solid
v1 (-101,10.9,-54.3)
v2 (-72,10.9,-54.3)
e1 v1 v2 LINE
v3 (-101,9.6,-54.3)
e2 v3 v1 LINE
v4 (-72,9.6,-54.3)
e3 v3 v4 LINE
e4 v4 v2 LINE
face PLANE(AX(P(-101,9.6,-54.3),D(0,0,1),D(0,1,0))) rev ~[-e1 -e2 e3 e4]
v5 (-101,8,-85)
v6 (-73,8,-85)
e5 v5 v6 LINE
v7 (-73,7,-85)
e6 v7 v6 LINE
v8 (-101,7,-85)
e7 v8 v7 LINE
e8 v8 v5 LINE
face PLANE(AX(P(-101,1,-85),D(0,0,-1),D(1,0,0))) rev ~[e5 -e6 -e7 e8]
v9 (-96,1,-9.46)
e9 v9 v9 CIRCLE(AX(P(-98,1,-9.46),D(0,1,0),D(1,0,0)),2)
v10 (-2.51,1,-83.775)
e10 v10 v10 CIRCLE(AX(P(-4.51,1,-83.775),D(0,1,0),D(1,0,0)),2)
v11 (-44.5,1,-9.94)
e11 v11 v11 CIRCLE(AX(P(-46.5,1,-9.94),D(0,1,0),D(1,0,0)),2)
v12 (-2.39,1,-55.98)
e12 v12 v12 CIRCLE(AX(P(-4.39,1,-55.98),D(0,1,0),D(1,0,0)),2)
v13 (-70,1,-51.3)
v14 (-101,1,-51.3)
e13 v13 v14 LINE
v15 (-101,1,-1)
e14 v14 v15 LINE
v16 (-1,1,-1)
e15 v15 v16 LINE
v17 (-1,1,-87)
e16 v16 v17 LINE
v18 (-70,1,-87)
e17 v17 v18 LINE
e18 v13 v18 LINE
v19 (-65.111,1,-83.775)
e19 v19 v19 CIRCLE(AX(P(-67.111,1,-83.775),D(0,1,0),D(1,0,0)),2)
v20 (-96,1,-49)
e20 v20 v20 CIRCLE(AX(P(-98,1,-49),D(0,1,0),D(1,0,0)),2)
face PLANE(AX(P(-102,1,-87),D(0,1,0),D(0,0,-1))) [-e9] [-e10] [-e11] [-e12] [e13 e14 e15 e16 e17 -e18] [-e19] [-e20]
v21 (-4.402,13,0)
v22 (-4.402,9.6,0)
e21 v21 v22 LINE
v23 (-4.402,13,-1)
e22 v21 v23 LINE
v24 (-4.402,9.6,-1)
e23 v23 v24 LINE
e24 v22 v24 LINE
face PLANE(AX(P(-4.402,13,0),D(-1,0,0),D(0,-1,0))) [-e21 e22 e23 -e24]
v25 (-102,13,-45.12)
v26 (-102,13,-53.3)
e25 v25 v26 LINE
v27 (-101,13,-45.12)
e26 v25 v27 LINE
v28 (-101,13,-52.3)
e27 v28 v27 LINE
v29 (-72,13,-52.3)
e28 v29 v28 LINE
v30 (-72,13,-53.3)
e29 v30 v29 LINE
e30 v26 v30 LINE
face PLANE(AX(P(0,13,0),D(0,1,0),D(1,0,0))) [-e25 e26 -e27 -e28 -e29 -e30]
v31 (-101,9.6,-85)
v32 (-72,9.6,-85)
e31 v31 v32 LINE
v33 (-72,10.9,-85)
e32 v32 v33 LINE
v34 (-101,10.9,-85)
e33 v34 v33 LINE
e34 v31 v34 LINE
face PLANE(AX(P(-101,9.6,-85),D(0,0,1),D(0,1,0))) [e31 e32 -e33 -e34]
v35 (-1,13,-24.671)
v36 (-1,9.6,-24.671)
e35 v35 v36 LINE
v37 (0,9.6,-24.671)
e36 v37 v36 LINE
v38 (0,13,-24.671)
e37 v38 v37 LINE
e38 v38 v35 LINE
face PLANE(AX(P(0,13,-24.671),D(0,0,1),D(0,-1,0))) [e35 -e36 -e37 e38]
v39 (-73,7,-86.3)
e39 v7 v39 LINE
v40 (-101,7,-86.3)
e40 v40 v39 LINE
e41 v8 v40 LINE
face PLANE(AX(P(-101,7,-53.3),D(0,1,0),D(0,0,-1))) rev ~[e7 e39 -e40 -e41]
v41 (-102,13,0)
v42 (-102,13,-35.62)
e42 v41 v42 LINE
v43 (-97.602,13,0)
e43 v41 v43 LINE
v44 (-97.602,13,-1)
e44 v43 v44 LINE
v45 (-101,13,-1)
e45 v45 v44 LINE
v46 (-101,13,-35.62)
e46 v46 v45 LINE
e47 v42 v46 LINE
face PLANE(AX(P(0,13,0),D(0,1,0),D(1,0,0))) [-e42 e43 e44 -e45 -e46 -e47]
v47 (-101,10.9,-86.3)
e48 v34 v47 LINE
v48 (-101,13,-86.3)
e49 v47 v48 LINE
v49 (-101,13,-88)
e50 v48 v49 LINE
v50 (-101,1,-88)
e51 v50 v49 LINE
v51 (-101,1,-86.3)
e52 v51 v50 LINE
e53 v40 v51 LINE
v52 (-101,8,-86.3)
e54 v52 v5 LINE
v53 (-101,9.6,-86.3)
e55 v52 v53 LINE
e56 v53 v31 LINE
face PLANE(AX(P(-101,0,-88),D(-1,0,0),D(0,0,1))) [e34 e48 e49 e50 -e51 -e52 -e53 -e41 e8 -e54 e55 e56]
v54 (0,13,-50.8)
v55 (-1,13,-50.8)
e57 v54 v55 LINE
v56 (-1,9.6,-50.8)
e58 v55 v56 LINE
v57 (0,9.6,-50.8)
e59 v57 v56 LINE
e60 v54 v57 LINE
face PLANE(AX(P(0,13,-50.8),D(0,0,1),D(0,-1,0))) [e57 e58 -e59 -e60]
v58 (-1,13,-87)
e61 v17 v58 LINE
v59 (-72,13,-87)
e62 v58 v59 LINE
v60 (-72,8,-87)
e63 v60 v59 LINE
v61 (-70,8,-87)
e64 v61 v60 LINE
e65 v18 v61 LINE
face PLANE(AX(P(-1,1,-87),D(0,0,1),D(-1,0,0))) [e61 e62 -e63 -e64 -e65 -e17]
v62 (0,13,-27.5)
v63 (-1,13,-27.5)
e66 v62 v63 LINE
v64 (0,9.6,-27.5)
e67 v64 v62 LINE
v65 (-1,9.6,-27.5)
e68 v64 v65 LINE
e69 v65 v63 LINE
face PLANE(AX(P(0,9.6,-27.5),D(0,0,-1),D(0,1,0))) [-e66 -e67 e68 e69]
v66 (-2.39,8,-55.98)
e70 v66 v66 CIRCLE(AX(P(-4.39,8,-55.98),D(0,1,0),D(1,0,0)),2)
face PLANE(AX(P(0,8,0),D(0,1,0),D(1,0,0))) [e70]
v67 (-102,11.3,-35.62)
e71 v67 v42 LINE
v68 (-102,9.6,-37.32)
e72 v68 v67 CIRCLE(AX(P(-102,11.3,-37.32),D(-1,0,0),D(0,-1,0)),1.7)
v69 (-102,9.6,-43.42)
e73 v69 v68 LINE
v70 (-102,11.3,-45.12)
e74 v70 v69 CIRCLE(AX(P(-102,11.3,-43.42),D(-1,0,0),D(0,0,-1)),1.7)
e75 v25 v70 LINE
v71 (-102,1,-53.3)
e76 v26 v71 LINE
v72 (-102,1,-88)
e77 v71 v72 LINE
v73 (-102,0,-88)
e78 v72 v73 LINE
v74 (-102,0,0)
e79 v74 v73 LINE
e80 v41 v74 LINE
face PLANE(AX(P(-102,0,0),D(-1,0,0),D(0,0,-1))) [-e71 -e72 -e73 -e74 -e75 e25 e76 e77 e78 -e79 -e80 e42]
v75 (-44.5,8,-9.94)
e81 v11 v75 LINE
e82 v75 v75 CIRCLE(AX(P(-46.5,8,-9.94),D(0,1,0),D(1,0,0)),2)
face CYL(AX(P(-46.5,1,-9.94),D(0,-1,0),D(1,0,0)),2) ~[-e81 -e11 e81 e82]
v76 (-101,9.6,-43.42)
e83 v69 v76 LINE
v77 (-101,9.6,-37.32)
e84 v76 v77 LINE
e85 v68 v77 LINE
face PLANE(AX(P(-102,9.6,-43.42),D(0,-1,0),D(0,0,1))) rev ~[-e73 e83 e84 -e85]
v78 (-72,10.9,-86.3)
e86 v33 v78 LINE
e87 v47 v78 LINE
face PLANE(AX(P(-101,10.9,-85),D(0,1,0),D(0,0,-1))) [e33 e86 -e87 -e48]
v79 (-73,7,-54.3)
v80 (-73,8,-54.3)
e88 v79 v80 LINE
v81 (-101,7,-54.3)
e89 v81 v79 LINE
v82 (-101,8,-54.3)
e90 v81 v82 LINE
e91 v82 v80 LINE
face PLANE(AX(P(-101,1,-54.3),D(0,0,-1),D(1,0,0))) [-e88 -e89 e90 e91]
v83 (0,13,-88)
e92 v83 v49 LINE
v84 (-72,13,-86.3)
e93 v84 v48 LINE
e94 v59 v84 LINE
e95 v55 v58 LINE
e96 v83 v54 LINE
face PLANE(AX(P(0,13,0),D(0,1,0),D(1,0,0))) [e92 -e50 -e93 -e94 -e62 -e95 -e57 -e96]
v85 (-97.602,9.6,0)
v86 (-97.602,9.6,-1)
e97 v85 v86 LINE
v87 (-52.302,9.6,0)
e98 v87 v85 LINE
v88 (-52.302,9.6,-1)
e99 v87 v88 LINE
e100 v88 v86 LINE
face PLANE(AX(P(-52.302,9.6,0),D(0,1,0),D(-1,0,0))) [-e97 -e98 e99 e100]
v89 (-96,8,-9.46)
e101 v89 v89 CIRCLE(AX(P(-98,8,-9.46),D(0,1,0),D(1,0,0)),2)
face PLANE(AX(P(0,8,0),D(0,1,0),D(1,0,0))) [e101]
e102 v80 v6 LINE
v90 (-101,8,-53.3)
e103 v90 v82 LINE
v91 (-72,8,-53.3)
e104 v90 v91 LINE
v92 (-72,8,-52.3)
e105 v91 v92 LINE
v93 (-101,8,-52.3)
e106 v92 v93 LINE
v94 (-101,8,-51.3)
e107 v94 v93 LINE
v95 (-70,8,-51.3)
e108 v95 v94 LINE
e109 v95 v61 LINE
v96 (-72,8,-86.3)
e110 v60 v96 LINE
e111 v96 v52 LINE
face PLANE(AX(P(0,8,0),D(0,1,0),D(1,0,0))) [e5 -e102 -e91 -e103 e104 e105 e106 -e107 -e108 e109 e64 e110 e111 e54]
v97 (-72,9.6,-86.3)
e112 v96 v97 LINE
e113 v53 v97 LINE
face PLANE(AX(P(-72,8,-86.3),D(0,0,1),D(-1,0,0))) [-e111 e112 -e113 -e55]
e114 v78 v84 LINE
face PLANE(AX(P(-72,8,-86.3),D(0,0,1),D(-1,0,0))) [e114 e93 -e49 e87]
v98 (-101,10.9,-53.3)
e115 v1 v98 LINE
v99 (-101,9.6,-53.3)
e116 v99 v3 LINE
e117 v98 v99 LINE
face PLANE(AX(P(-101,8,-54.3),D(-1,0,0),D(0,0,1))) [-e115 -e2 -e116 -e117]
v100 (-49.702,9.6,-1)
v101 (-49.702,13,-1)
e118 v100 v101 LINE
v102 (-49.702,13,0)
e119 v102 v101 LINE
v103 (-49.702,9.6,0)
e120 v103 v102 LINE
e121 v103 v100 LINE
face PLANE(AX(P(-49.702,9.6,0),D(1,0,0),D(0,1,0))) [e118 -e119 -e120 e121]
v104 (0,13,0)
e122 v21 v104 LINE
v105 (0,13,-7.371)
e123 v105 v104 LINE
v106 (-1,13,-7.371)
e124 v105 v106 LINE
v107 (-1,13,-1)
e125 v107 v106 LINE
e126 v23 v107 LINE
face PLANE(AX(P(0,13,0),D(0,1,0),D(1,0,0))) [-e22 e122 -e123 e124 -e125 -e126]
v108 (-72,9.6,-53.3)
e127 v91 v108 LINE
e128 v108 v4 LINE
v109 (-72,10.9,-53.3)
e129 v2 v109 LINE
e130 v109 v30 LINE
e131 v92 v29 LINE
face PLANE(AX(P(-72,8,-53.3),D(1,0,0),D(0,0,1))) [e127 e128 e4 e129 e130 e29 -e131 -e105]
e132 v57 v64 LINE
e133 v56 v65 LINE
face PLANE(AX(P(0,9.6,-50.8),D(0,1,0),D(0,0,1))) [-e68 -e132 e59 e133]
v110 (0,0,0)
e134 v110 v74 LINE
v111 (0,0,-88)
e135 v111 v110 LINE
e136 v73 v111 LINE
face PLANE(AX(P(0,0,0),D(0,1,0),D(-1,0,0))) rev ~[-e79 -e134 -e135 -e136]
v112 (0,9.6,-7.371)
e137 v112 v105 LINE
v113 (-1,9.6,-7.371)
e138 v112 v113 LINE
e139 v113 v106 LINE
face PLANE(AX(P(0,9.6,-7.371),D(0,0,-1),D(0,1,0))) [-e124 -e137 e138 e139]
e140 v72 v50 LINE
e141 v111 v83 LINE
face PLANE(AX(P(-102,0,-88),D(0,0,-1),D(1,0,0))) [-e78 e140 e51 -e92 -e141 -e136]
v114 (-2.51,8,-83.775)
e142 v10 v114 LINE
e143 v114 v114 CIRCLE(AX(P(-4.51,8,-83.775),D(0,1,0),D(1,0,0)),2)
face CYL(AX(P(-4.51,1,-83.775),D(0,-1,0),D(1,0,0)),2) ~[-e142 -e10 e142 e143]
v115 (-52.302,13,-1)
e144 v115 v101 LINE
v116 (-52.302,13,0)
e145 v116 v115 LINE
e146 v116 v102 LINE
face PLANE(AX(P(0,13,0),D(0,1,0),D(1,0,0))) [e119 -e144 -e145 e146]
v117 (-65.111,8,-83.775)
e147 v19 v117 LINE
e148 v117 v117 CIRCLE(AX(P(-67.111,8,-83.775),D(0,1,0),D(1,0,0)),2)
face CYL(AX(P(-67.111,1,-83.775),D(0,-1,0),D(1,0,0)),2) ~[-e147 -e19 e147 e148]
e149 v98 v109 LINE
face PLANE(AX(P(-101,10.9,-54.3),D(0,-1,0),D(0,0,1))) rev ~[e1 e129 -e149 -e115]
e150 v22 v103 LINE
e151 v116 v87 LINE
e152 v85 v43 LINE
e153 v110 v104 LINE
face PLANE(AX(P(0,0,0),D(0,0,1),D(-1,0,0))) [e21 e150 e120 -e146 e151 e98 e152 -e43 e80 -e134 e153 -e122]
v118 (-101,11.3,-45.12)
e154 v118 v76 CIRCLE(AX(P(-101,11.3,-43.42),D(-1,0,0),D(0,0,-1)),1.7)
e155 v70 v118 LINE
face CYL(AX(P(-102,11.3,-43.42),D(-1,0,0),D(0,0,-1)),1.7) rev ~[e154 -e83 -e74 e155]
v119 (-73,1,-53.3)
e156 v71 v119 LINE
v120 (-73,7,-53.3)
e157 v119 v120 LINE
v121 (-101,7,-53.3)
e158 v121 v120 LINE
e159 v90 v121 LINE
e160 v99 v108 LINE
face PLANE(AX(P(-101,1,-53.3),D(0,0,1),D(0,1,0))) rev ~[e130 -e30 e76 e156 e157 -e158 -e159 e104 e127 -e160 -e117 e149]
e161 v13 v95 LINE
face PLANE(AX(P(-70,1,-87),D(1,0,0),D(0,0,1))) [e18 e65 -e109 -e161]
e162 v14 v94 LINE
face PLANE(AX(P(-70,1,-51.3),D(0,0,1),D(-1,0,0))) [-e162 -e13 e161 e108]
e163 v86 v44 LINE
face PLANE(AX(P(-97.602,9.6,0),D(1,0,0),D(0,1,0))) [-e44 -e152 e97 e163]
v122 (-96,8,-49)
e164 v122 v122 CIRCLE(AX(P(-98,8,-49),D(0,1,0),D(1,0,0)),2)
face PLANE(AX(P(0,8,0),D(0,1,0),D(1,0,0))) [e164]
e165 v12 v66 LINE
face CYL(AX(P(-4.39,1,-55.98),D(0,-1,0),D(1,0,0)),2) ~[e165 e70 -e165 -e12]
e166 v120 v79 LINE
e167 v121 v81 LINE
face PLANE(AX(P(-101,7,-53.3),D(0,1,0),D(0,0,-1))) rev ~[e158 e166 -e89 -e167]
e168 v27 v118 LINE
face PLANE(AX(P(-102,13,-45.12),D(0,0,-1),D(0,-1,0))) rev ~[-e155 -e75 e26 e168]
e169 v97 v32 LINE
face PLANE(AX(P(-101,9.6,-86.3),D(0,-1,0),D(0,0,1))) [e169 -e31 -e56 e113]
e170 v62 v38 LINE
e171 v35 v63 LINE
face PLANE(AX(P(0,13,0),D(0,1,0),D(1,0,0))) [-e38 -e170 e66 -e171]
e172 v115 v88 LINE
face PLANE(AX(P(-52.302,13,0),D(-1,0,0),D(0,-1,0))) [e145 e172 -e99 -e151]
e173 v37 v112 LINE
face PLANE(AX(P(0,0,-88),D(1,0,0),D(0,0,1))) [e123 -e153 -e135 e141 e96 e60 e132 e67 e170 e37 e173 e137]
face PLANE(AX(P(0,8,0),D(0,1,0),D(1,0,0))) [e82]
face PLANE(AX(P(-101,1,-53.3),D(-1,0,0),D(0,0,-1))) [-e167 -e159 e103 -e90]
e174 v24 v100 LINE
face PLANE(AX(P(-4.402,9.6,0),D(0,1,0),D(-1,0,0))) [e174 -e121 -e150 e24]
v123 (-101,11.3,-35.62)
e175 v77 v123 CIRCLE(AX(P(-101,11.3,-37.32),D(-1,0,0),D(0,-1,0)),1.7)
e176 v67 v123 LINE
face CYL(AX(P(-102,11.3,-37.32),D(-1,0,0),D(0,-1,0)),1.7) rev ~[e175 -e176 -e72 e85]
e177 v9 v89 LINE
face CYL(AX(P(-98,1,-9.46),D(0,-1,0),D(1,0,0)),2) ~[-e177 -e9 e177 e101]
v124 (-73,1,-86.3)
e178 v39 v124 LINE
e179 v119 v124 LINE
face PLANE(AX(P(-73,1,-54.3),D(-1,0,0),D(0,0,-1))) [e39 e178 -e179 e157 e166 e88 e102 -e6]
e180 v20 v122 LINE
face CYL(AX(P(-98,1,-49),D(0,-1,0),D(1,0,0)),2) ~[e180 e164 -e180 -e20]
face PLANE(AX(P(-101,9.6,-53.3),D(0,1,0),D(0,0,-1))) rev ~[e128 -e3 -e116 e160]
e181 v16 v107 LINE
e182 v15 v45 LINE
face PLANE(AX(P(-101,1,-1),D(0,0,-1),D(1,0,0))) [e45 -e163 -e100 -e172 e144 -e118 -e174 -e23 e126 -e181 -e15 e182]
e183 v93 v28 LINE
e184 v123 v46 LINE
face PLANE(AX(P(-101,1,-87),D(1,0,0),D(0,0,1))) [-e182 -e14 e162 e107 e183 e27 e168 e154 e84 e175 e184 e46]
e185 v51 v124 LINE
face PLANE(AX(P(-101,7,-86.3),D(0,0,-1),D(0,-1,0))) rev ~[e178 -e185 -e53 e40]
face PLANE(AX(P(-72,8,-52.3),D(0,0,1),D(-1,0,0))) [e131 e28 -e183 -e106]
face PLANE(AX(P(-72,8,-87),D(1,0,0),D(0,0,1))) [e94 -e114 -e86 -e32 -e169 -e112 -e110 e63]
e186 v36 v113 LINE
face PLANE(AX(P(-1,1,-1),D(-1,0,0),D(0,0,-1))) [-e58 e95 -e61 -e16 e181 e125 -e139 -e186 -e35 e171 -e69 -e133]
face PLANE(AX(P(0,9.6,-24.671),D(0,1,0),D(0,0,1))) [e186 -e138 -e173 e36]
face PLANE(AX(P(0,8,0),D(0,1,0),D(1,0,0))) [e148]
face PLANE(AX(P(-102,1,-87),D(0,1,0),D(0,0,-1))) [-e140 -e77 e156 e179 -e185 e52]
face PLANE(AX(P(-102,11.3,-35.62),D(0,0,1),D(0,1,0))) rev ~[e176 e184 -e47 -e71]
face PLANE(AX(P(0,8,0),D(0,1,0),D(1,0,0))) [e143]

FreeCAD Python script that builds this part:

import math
import FreeCAD as App
import Part
import Sketcher
Q = App.Units.Quantity

doc = App.newDocument("Part")
body = doc.addObject("PartDesign::Body", "Body")

# Sketch on XZ plane
sketch1 = body.newObject("Sketcher::SketchObject", "Sketch")
sketch1.AttachmentSupport = (doc.getObject("XZ_Plane"), [""])
sketch1.MapMode = "FlatFace"
sketch1.addGeometry(Part.LineSegment(App.Vector(-102, 0, 0), App.Vector(0, 0, 0)), False)
sketch1.addGeometry(Part.LineSegment(App.Vector(0, 0, 0), App.Vector(0, -88, 0)), False)
sketch1.addGeometry(Part.LineSegment(App.Vector(0, -88, 0), App.Vector(-102, -88, 0)), False)
sketch1.addGeometry(Part.LineSegment(App.Vector(-102, -88, 0), App.Vector(-102, 0, 0)), False)
sketch1.addConstraint(Sketcher.Constraint("Coincident", 0, 2, 1, 1))
sketch1.addConstraint(Sketcher.Constraint("Coincident", 1, 2, 2, 1))
sketch1.addConstraint(Sketcher.Constraint("Coincident", 2, 2, 3, 1))
sketch1.addConstraint(Sketcher.Constraint("Coincident", 3, 2, 0, 1))
sketch1.addConstraint(Sketcher.Constraint("Horizontal", 0))
sketch1.addConstraint(Sketcher.Constraint("Vertical", 1))
sketch1.addConstraint(Sketcher.Constraint("Horizontal", 2))
sketch1.addConstraint(Sketcher.Constraint("Vertical", 3))
sketch1.addConstraint(Sketcher.Constraint("Coincident", 0, 2, -1, 1))
sketch1.addConstraint(Sketcher.Constraint("DistanceX", 0, 1, 0, 2, Q("102 mm")))
sketch1.addConstraint(Sketcher.Constraint("DistanceY", 1, 2, 1, 1, Q("88 mm")))
pad1 = body.newObject("PartDesign::Pad", "Pad")
pad1.Profile = sketch1
pad1.Length = 1
pad1.Reversed = True

# Sketch on XZ plane
sketch2 = body.newObject("Sketcher::SketchObject", "Sketch001")
sketch2.AttachmentSupport = (doc.getObject("XZ_Plane"), [""])
sketch2.MapMode = "FlatFace"
sketch2.AttachmentOffset = App.Placement(App.Vector(0, 0, -1), App.Rotation())
sketch2.addGeometry(Part.LineSegment(App.Vector(0, 0, 0), App.Vector(0, -88, 0)), False)
sketch2.addGeometry(Part.LineSegment(App.Vector(0, -88, 0), App.Vector(-102, -88, 0)), False)
sketch2.addGeometry(Part.LineSegment(App.Vector(-102, -88, 0), App.Vector(-102, 0, 0)), False)
sketch2.addGeometry(Part.LineSegment(App.Vector(-102, 0, 0), App.Vector(0, 0, 0)), False)
sketch2.addGeometry(Part.LineSegment(App.Vector(-1, -87, 0), App.Vector(-1, -1, 0)), False)
sketch2.addGeometry(Part.LineSegment(App.Vector(-1, -1, 0), App.Vector(-101, -1, 0)), False)
sketch2.addGeometry(Part.LineSegment(App.Vector(-101, -1, 0), App.Vector(-101, -87, 0)), False)
sketch2.addGeometry(Part.LineSegment(App.Vector(-101, -87, 0), App.Vector(-1, -87, 0)), False)
sketch2.addConstraint(Sketcher.Constraint("Coincident", 0, 2, 1, 1))
sketch2.addConstraint(Sketcher.Constraint("Coincident", 1, 2, 2, 1))
sketch2.addConstraint(Sketcher.Constraint("Coincident", 2, 2, 3, 1))
sketch2.addConstraint(Sketcher.Constraint("Coincident", 3, 2, 0, 1))
sketch2.addConstraint(Sketcher.Constraint("Coincident", 4, 2, 5, 1))
sketch2.addConstraint(Sketcher.Constraint("Coincident", 5, 2, 6, 1))
sketch2.addConstraint(Sketcher.Constraint("Coincident", 6, 2, 7, 1))
sketch2.addConstraint(Sketcher.Constraint("Coincident", 7, 2, 4, 1))
sketch2.addConstraint(Sketcher.Constraint("Vertical", 0))
sketch2.addConstraint(Sketcher.Constraint("Horizontal", 1))
sketch2.addConstraint(Sketcher.Constraint("Vertical", 2))
sketch2.addConstraint(Sketcher.Constraint("Horizontal", 3))
sketch2.addConstraint(Sketcher.Constraint("Vertical", 4))
sketch2.addConstraint(Sketcher.Constraint("Horizontal", 5))
sketch2.addConstraint(Sketcher.Constraint("Vertical", 6))
sketch2.addConstraint(Sketcher.Constraint("Horizontal", 7))
sketch2.addConstraint(Sketcher.Constraint("Coincident", 3, 2, -1, 1))
sketch2.addConstraint(Sketcher.Constraint("DistanceX", 4, 2, -1, 1, Q("1 mm")))
sketch2.addConstraint(Sketcher.Constraint("DistanceY", 4, 2, -1, 1, Q("1 mm")))
sketch2.addConstraint(Sketcher.Constraint("DistanceX", 2, 2, 5, 2, Q("1 mm")))
sketch2.addConstraint(Sketcher.Constraint("DistanceY", 1, 2, 6, 2, Q("1 mm")))
sketch2.addConstraint(Sketcher.Constraint("DistanceX", 1, 2, 1, 1, Q("102 mm")))
sketch2.addConstraint(Sketcher.Constraint("DistanceY", 0, 2, 0, 1, Q("88 mm")))
pad2 = body.newObject("PartDesign::Pad", "Pad001")
pad2.Profile = sketch2
pad2.Length = 12
pad2.Reversed = True

# Sketch on XY plane
sketch3 = body.newObject("Sketcher::SketchObject", "Sketch002")
sketch3.AttachmentSupport = (doc.getObject("XY_Plane"), [""])
sketch3.MapMode = "FlatFace"
sketch3.addGeometry(Part.LineSegment(App.Vector(-4.4, 9.6, 0), App.Vector(-4.4, 13, 0)), False)
sketch3.addGeometry(Part.LineSegment(App.Vector(-4.4, 13, 0), App.Vector(-49.7, 13, 0)), False)
sketch3.addGeometry(Part.LineSegment(App.Vector(-49.7, 13, 0), App.Vector(-49.7, 9.6, 0)), False)
sketch3.addGeometry(Part.LineSegment(App.Vector(-49.7, 9.6, 0), App.Vector(-4.4, 9.6, 0)), False)
sketch3.addGeometry(Part.LineSegment(App.Vector(-52.3, 9.6, 0), App.Vector(-52.3, 13, 0)), False)
sketch3.addGeometry(Part.LineSegment(App.Vector(-52.3, 13, 0), App.Vector(-97.6, 13, 0)), False)
sketch3.addGeometry(Part.LineSegment(App.Vector(-97.6, 13, 0), App.Vector(-97.6, 9.6, 0)), False)
sketch3.addGeometry(Part.LineSegment(App.Vector(-97.6, 9.6, 0), App.Vector(-52.3, 9.6, 0)), False)
sketch3.addConstraint(Sketcher.Constraint("Coincident", 0, 2, 1, 1))
sketch3.addConstraint(Sketcher.Constraint("Coincident", 1, 2, 2, 1))
sketch3.addConstraint(Sketcher.Constraint("Coincident", 2, 2, 3, 1))
sketch3.addConstraint(Sketcher.Constraint("Coincident", 3, 2, 0, 1))
sketch3.addConstraint(Sketcher.Constraint("Coincident", 4, 2, 5, 1))
sketch3.addConstraint(Sketcher.Constraint("Coincident", 5, 2, 6, 1))
sketch3.addConstraint(Sketcher.Constraint("Coincident", 6, 2, 7, 1))
sketch3.addConstraint(Sketcher.Constraint("Coincident", 7, 2, 4, 1))
sketch3.addConstraint(Sketcher.Constraint("Vertical", 0))
sketch3.addConstraint(Sketcher.Constraint("Horizontal", 1))
sketch3.addConstraint(Sketcher.Constraint("Vertical", 2))
sketch3.addConstraint(Sketcher.Constraint("Horizontal", 3))
sketch3.addConstraint(Sketcher.Constraint("Vertical", 4))
sketch3.addConstraint(Sketcher.Constraint("Horizontal", 5))
sketch3.addConstraint(Sketcher.Constraint("Vertical", 6))
sketch3.addConstraint(Sketcher.Constraint("Horizontal", 7))
sketch3.addConstraint(Sketcher.Constraint("Horizontal", 1, 2, 4, 2))
sketch3.addConstraint(Sketcher.Constraint("Horizontal", 3, 2, 6, 2))
sketch3.addConstraint(Sketcher.Constraint("Equal", 3, 5))
sketch3.addConstraint(Sketcher.Constraint("DistanceX", 1, 2, 1, 1, Q("45.3 mm")))
sketch3.addConstraint(Sketcher.Constraint("DistanceY", -1, 1, 2, 2, Q("9.6 mm")))
sketch3.addConstraint(Sketcher.Constraint("DistanceX", 4, 2, 1, 2, Q("2.6 mm")))
sketch3.addConstraint(Sketcher.Constraint("DistanceY", 0, 1, 0, 2, Q("3.4 mm")))
sketch3.addConstraint(Sketcher.Constraint("DistanceX", 0, 2, -1, 1, Q("4.402 mm")))
pocket1 = body.newObject("PartDesign::Pocket", "Pocket")
pocket1.Profile = sketch3
pocket1.Length = 1

# Sketch on YZ plane
sketch4 = body.newObject("Sketcher::SketchObject", "Sketch003")
sketch4.AttachmentSupport = (doc.getObject("YZ_Plane"), [""])
sketch4.MapMode = "FlatFace"
sketch4.addGeometry(Part.LineSegment(App.Vector(13, -50.8, 0), App.Vector(13, -27.5, 0)), False)
sketch4.addGeometry(Part.LineSegment(App.Vector(13, -27.5, 0), App.Vector(9.6, -27.5, 0)), False)
sketch4.addGeometry(Part.LineSegment(App.Vector(9.6, -27.5, 0), App.Vector(9.6, -50.8, 0)), False)
sketch4.addGeometry(Part.LineSegment(App.Vector(9.6, -50.8, 0), App.Vector(13, -50.8, 0)), False)
sketch4.addGeometry(Part.LineSegment(App.Vector(13, -24.7, 0), App.Vector(13, -7.4, 0)), False)
sketch4.addGeometry(Part.LineSegment(App.Vector(13, -7.4, 0), App.Vector(9.6, -7.4, 0)), False)
sketch4.addGeometry(Part.LineSegment(App.Vector(9.6, -7.4, 0), App.Vector(9.6, -24.7, 0)), False)
sketch4.addGeometry(Part.LineSegment(App.Vector(9.6, -24.7, 0), App.Vector(13, -24.7, 0)), False)
sketch4.addConstraint(Sketcher.Constraint("Coincident", 0, 2, 1, 1))
sketch4.addConstraint(Sketcher.Constraint("Coincident", 1, 2, 2, 1))
sketch4.addConstraint(Sketcher.Constraint("Coincident", 2, 2, 3, 1))
sketch4.addConstraint(Sketcher.Constraint("Coincident", 3, 2, 0, 1))
sketch4.addConstraint(Sketcher.Constraint("Coincident", 4, 2, 5, 1))
sketch4.addConstraint(Sketcher.Constraint("Coincident", 5, 2, 6, 1))
sketch4.addConstraint(Sketcher.Constraint("Coincident", 6, 2, 7, 1))
sketch4.addConstraint(Sketcher.Constraint("Coincident", 7, 2, 4, 1))
sketch4.addConstraint(Sketcher.Constraint("Vertical", 0))
sketch4.addConstraint(Sketcher.Constraint("Horizontal", 1))
sketch4.addConstraint(Sketcher.Constraint("Vertical", 2))
sketch4.addConstraint(Sketcher.Constraint("Horizontal", 3))
sketch4.addConstraint(Sketcher.Constraint("Vertical", 4))
sketch4.addConstraint(Sketcher.Constraint("Horizontal", 5))
sketch4.addConstraint(Sketcher.Constraint("Vertical", 6))
sketch4.addConstraint(Sketcher.Constraint("Horizontal", 7))
sketch4.addConstraint(Sketcher.Constraint("Vertical", 3, 2, 4, 2))
sketch4.addConstraint(Sketcher.Constraint("Vertical", 2, 2, 5, 2))
sketch4.addConstraint(Sketcher.Constraint("DistanceY", 0, 1, 0, 2, Q("23.3 mm")))
sketch4.addConstraint(Sketcher.Constraint("DistanceY", 4, 1, 4, 2, Q("17.3 mm")))
sketch4.addConstraint(Sketcher.Constraint("DistanceX", 1, 2, 1, 1, Q("3.4 mm")))
sketch4.addConstraint(Sketcher.Constraint("DistanceY", 4, 2, -1, 1, Q("7.371 mm")))
sketch4.addConstraint(Sketcher.Constraint("DistanceX", -1, 1, 0, 2, Q("13 mm")))
sketch4.addConstraint(Sketcher.Constraint("DistanceY", 1, 2, 6, 2, Q("2.829 mm")))
pocket2 = body.newObject("PartDesign::Pocket", "Pocket001")
pocket2.Profile = sketch4
pocket2.Length = 1

# Sketch on YZ plane
sketch5 = body.newObject("Sketcher::SketchObject", "Sketch004")
sketch5.AttachmentSupport = (doc.getObject("YZ_Plane"), [""])
sketch5.MapMode = "FlatFace"
sketch5.AttachmentOffset = App.Placement(App.Vector(0, 0, -102), App.Rotation())
sketch5.addGeometry(Part.ArcOfCircle(Part.Circle(App.Vector(11.3, -43.4, 0), App.Vector(0, 0, 1), 1.7), math.radians(180), math.radians(270)), False)
sketch5.addGeometry(Part.LineSegment(App.Vector(9.6, -43.4, 0), App.Vector(9.6, -37.3, 0)), False)
sketch5.addGeometry(Part.ArcOfCircle(Part.Circle(App.Vector(11.3, -37.3, 0), App.Vector(0, 0, 1), 1.7), math.radians(90), math.radians(180)), False)
sketch5.addGeometry(Part.LineSegment(App.Vector(11.3, -35.6, 0), App.Vector(13, -35.6, 0)), False)
sketch5.addGeometry(Part.LineSegment(App.Vector(13, -35.6, 0), App.Vector(13, -45.1, 0)), False)
sketch5.addGeometry(Part.LineSegment(App.Vector(13, -45.1, 0), App.Vector(11.3, -45.1, 0)), False)
sketch5.addConstraint(Sketcher.Constraint("Tangent", 0, 1, 1, 1))
sketch5.addConstraint(Sketcher.Constraint("Tangent", 1, 2, 2, 2))
sketch5.addConstraint(Sketcher.Constraint("Tangent", 2, 1, 3, 1))
sketch5.addConstraint(Sketcher.Constraint("Coincident", 3, 2, 4, 1))
sketch5.addConstraint(Sketcher.Constraint("Coincident", 4, 2, 5, 1))
sketch5.addConstraint(Sketcher.Constraint("Tangent", 5, 2, 0, 2))
sketch5.addConstraint(Sketcher.Constraint("Vertical", 1))
sketch5.addConstraint(Sketcher.Constraint("Horizontal", 3))
sketch5.addConstraint(Sketcher.Constraint("Vertical", 4))
sketch5.addConstraint(Sketcher.Constraint("Horizontal", 5))
sketch5.addConstraint(Sketcher.Constraint("Equal", 0, 2))
sketch5.addConstraint(Sketcher.Constraint("Radius", 0, Q("1.7 mm")))
sketch5.addConstraint(Sketcher.Constraint("DistanceX", 3, 1, 3, 2, Q("1.7 mm")))
sketch5.addConstraint(Sketcher.Constraint("DistanceY", 4, 2, 4, 1, Q("9.5 mm")))
sketch5.addConstraint(Sketcher.Constraint("DistanceX", -1, 1, 3, 2, Q("13 mm")))
sketch5.addConstraint(Sketcher.Constraint("DistanceY", 0, 3, -1, 1, Q("43.42 mm")))
pocket3 = body.newObject("PartDesign::Pocket", "Pocket002")
pocket3.Profile = sketch5
pocket3.Length = 1
pocket3.Reversed = True

# Sketch on YZ plane
sketch6 = body.newObject("Sketcher::SketchObject", "Sketch005")
sketch6.AttachmentSupport = (doc.getObject("YZ_Plane"), [""])
sketch6.MapMode = "FlatFace"
sketch6.AttachmentOffset = App.Placement(App.Vector(0, 0, -102), App.Rotation())
sketch6.addGeometry(Part.LineSegment(App.Vector(1, -88, 0), App.Vector(1, -53, 0)), False)
sketch6.addGeometry(Part.LineSegment(App.Vector(1, -53, 0), App.Vector(13, -53, 0)), False)
sketch6.addGeometry(Part.LineSegment(App.Vector(13, -53, 0), App.Vector(13, -88, 0)), False)
sketch6.addGeometry(Part.LineSegment(App.Vector(13, -88, 0), App.Vector(1, -88, 0)), False)
sketch6.addConstraint(Sketcher.Constraint("Coincident", 0, 2, 1, 1))
sketch6.addConstraint(Sketcher.Constraint("Coincident", 1, 2, 2, 1))
sketch6.addConstraint(Sketcher.Constraint("Coincident", 2, 2, 3, 1))
sketch6.addConstraint(Sketcher.Constraint("Coincident", 3, 2, 0, 1))
sketch6.addConstraint(Sketcher.Constraint("Vertical", 0))
sketch6.addConstraint(Sketcher.Constraint("Horizontal", 1))
sketch6.addConstraint(Sketcher.Constraint("Vertical", 2))
sketch6.addConstraint(Sketcher.Constraint("Horizontal", 3))
sketch6.addConstraint(Sketcher.Constraint("DistanceY", 0, 1, 0, 2, Q("34.7 mm")))
sketch6.addConstraint(Sketcher.Constraint("DistanceX", 1, 1, 1, 2, Q("12 mm")))
sketch6.addConstraint(Sketcher.Constraint("DistanceX", -1, 1, 0, 2, Q("1 mm")))
sketch6.addConstraint(Sketcher.Constraint("DistanceY", 2, 2, -1, 1, Q("88 mm")))
pocket4 = body.newObject("PartDesign::Pocket", "Pocket003")
pocket4.Profile = sketch6
pocket4.Length = 1
pocket4.Reversed = True

# Sketch on XZ plane
sketch7 = body.newObject("Sketcher::SketchObject", "Sketch006")
sketch7.AttachmentSupport = (doc.getObject("XZ_Plane"), [""])
sketch7.MapMode = "FlatFace"
sketch7.AttachmentOffset = App.Placement(App.Vector(0, 0, -1), App.Rotation())
sketch7.addGeometry(Part.LineSegment(App.Vector(-73, -54.3, 0), App.Vector(-101, -54.3, 0)), False)
sketch7.addGeometry(Part.LineSegment(App.Vector(-101, -54.3, 0), App.Vector(-101, -51.3, 0)), False)
sketch7.addGeometry(Part.LineSegment(App.Vector(-101, -51.3, 0), App.Vector(-70, -51.3, 0)), False)
sketch7.addGeometry(Part.LineSegment(App.Vector(-70, -51.3, 0), App.Vector(-70, -87, 0)), False)
sketch7.addGeometry(Part.LineSegment(App.Vector(-70, -87, 0), App.Vector(-101, -87, 0)), False)
sketch7.addGeometry(Part.LineSegment(App.Vector(-101, -87, 0), App.Vector(-101, -85, 0)), False)
sketch7.addGeometry(Part.LineSegment(App.Vector(-101, -85, 0), App.Vector(-73, -85, 0)), False)
sketch7.addGeometry(Part.LineSegment(App.Vector(-73, -85, 0), App.Vector(-73, -54.3, 0)), False)
sketch7.addConstraint(Sketcher.Constraint("Coincident", 0, 2, 1, 1))
sketch7.addConstraint(Sketcher.Constraint("Coincident", 1, 2, 2, 1))
sketch7.addConstraint(Sketcher.Constraint("Coincident", 2, 2, 3, 1))
sketch7.addConstraint(Sketcher.Constraint("Coincident", 3, 2, 4, 1))
sketch7.addConstraint(Sketcher.Constraint("Coincident", 4, 2, 5, 1))
sketch7.addConstraint(Sketcher.Constraint("Coincident", 5, 2, 6, 1))
sketch7.addConstraint(Sketcher.Constraint("Coincident", 6, 2, 7, 1))
sketch7.addConstraint(Sketcher.Constraint("Coincident", 7, 2, 0, 1))
sketch7.addConstraint(Sketcher.Constraint("Horizontal", 0))
sketch7.addConstraint(Sketcher.Constraint("Vertical", 1))
sketch7.addConstraint(Sketcher.Constraint("Horizontal", 2))
sketch7.addConstraint(Sketcher.Constraint("Vertical", 3))
sketch7.addConstraint(Sketcher.Constraint("Horizontal", 4))
sketch7.addConstraint(Sketcher.Constraint("Vertical", 5))
sketch7.addConstraint(Sketcher.Constraint("Horizontal", 6))
sketch7.addConstraint(Sketcher.Constraint("Vertical", 7))
sketch7.addConstraint(Sketcher.Constraint("Vertical", 1, 2, 4, 2))
sketch7.addConstraint(Sketcher.Constraint("DistanceX", 2, 1, 2, 2, Q("31 mm")))
sketch7.addConstraint(Sketcher.Constraint("DistanceY", 1, 1, 1, 2, Q("3 mm")))
sketch7.addConstraint(Sketcher.Constraint("DistanceY", 5, 1, 5, 2, Q("2 mm")))
sketch7.addConstraint(Sketcher.Constraint("DistanceX", 6, 2, 3, 2, Q("3 mm")))
sketch7.addConstraint(Sketcher.Constraint("DistanceY", 3, 2, 3, 1, Q("35.7 mm")))
sketch7.addConstraint(Sketcher.Constraint("DistanceX", 0, 2, -1, 1, Q("101 mm")))
sketch7.addConstraint(Sketcher.Constraint("DistanceY", 3, 2, -1, 1, Q("87 mm")))
pad3 = body.newObject("PartDesign::Pad", "Pad002")
pad3.Profile = sketch7
pad3.Length = 7
pad3.Reversed = True

# Sketch on XZ plane
sketch8 = body.newObject("Sketcher::SketchObject", "Sketch007")
sketch8.AttachmentSupport = (doc.getObject("XZ_Plane"), [""])
sketch8.MapMode = "FlatFace"
sketch8.AttachmentOffset = App.Placement(App.Vector(0, 0, -8), App.Rotation())
sketch8.addGeometry(Part.LineSegment(App.Vector(-72, -53.3, 0), App.Vector(-101, -53.3, 0)), False)
sketch8.addGeometry(Part.LineSegment(App.Vector(-101, -53.3, 0), App.Vector(-101, -52.3, 0)), False)
sketch8.addGeometry(Part.LineSegment(App.Vector(-101, -52.3, 0), App.Vector(-72, -52.3, 0)), False)
sketch8.addGeometry(Part.LineSegment(App.Vector(-72, -52.3, 0), App.Vector(-72, -53.3, 0)), False)
sketch8.addGeometry(Part.LineSegment(App.Vector(-101, -87, 0), App.Vector(-101, -86.3, 0)), False)
sketch8.addGeometry(Part.LineSegment(App.Vector(-101, -86.3, 0), App.Vector(-72, -86.3, 0)), False)
sketch8.addGeometry(Part.LineSegment(App.Vector(-72, -86.3, 0), App.Vector(-72, -87, 0)), False)
sketch8.addGeometry(Part.LineSegment(App.Vector(-72, -87, 0), App.Vector(-101, -87, 0)), False)
sketch8.addConstraint(Sketcher.Constraint("Coincident", 0, 2, 1, 1))
sketch8.addConstraint(Sketcher.Constraint("Coincident", 1, 2, 2, 1))
sketch8.addConstraint(Sketcher.Constraint("Coincident", 2, 2, 3, 1))
sketch8.addConstraint(Sketcher.Constraint("Coincident", 3, 2, 0, 1))
sketch8.addConstraint(Sketcher.Constraint("Coincident", 4, 2, 5, 1))
sketch8.addConstraint(Sketcher.Constraint("Coincident", 5, 2, 6, 1))
sketch8.addConstraint(Sketcher.Constraint("Coincident", 6, 2, 7, 1))
sketch8.addConstraint(Sketcher.Constraint("Coincident", 7, 2, 4, 1))
sketch8.addConstraint(Sketcher.Constraint("Horizontal", 0))
sketch8.addConstraint(Sketcher.Constraint("Vertical", 1))
sketch8.addConstraint(Sketcher.Constraint("Horizontal", 2))
sketch8.addConstraint(Sketcher.Constraint("Vertical", 3))
sketch8.addConstraint(Sketcher.Constraint("Vertical", 4))
sketch8.addConstraint(Sketcher.Constraint("Horizontal", 5))
sketch8.addConstraint(Sketcher.Constraint("Vertical", 6))
sketch8.addConstraint(Sketcher.Constraint("Horizontal", 7))
sketch8.addConstraint(Sketcher.Constraint("Vertical", 1, 2, 4, 2))
sketch8.addConstraint(Sketcher.Constraint("Vertical", 3, 2, 5, 2))
sketch8.addConstraint(Sketcher.Constraint("DistanceY", 1, 1, 1, 2, Q("1 mm")))
sketch8.addConstraint(Sketcher.Constraint("DistanceY", 4, 1, 4, 2, Q("0.7 mm")))
sketch8.addConstraint(Sketcher.Constraint("DistanceX", 0, 2, 0, 1, Q("29 mm")))
sketch8.addConstraint(Sketcher.Constraint("DistanceX", 0, 2, -1, 1, Q("101 mm")))
sketch8.addConstraint(Sketcher.Constraint("DistanceY", 6, 2, -1, 1, Q("87 mm")))
sketch8.addConstraint(Sketcher.Constraint("DistanceY", 4, 2, 0, 2, Q("33 mm")))
pad4 = body.newObject("PartDesign::Pad", "Pad003")
pad4.Profile = sketch8
pad4.Length = 5
pad4.Reversed = True

# Sketch on YZ plane
sketch9 = body.newObject("Sketcher::SketchObject", "Sketch008")
sketch9.AttachmentSupport = (doc.getObject("YZ_Plane"), [""])
sketch9.MapMode = "FlatFace"
sketch9.AttachmentOffset = App.Placement(App.Vector(0, 0, -101), App.Rotation())
sketch9.addGeometry(Part.LineSegment(App.Vector(1, -86, 0), App.Vector(1, -53, 0)), False)
sketch9.addGeometry(Part.LineSegment(App.Vector(1, -53, 0), App.Vector(7, -53, 0)), False)
sketch9.addGeometry(Part.LineSegment(App.Vector(7, -53, 0), App.Vector(7, -86, 0)), False)
sketch9.addGeometry(Part.LineSegment(App.Vector(7, -86, 0), App.Vector(1, -86, 0)), False)
sketch9.addConstraint(Sketcher.Constraint("Coincident", 0, 2, 1, 1))
sketch9.addConstraint(Sketcher.Constraint("Coincident", 1, 2, 2, 1))
sketch9.addConstraint(Sketcher.Constraint("Coincident", 2, 2, 3, 1))
sketch9.addConstraint(Sketcher.Constraint("Coincident", 3, 2, 0, 1))
sketch9.addConstraint(Sketcher.Constraint("Vertical", 0))
sketch9.addConstraint(Sketcher.Constraint("Horizontal", 1))
sketch9.addConstraint(Sketcher.Constraint("Vertical", 2))
sketch9.addConstraint(Sketcher.Constraint("Horizontal", 3))
sketch9.addConstraint(Sketcher.Constraint("DistanceX", -1, 1, 0, 2, Q("1 mm")))
sketch9.addConstraint(Sketcher.Constraint("DistanceX", 1, 1, 1, 2, Q("6 mm")))
sketch9.addConstraint(Sketcher.Constraint("DistanceY", 0, 1, 0, 2, Q("33 mm")))
sketch9.addConstraint(Sketcher.Constraint("DistanceY", 0, 2, -1, 1, Q("53.3 mm")))
pocket5 = body.newObject("PartDesign::Pocket", "Pocket004")
pocket5.Profile = sketch9
pocket5.Length = 28
pocket5.Reversed = True

# Sketch on YZ plane
sketch10 = body.newObject("Sketcher::SketchObject", "Sketch009")
sketch10.AttachmentSupport = (doc.getObject("YZ_Plane"), [""])
sketch10.MapMode = "FlatFace"
sketch10.AttachmentOffset = App.Placement(App.Vector(0, 0, -101), App.Rotation())
sketch10.addGeometry(Part.LineSegment(App.Vector(9.6, -53.3, 0), App.Vector(10.9, -53.3, 0)), False)
sketch10.addGeometry(Part.LineSegment(App.Vector(10.9, -53.3, 0), App.Vector(10.9, -54.3, 0)), False)
sketch10.addGeometry(Part.LineSegment(App.Vector(10.9, -54.3, 0), App.Vector(9.6, -54.3, 0)), False)
sketch10.addGeometry(Part.LineSegment(App.Vector(9.6, -54.3, 0), App.Vector(9.6, -53.3, 0)), False)
sketch10.addGeometry(Part.LineSegment(App.Vector(10.9, -86.3, 0), App.Vector(9.6, -86.3, 0)), False)
sketch10.addGeometry(Part.LineSegment(App.Vector(9.6, -86.3, 0), App.Vector(9.6, -85, 0)), False)
sketch10.addGeometry(Part.LineSegment(App.Vector(9.6, -85, 0), App.Vector(10.9, -85, 0)), False)
sketch10.addGeometry(Part.LineSegment(App.Vector(10.9, -85, 0), App.Vector(10.9, -86.3, 0)), False)
sketch10.addConstraint(Sketcher.Constraint("Coincident", 0, 2, 1, 1))
sketch10.addConstraint(Sketcher.Constraint("Coincident", 1, 2, 2, 1))
sketch10.addConstraint(Sketcher.Constraint("Coincident", 2, 2, 3, 1))
sketch10.addConstraint(Sketcher.Constraint("Coincident", 3, 2, 0, 1))
sketch10.addConstraint(Sketcher.Constraint("Coincident", 4, 2, 5, 1))
sketch10.addConstraint(Sketcher.Constraint("Coincident", 5, 2, 6, 1))
sketch10.addConstraint(Sketcher.Constraint("Coincident", 6, 2, 7, 1))
sketch10.addConstraint(Sketcher.Constraint("Coincident", 7, 2, 4, 1))
sketch10.addConstraint(Sketcher.Constraint("Horizontal", 0))
sketch10.addConstraint(Sketcher.Constraint("Vertical", 1))
sketch10.addConstraint(Sketcher.Constraint("Horizontal", 2))
sketch10.addConstraint(Sketcher.Constraint("Vertical", 3))
sketch10.addConstraint(Sketcher.Constraint("Horizontal", 4))
sketch10.addConstraint(Sketcher.Constraint("Vertical", 5))
sketch10.addConstraint(Sketcher.Constraint("Horizontal", 6))
sketch10.addConstraint(Sketcher.Constraint("Vertical", 7))
sketch10.addConstraint(Sketcher.Constraint("Vertical", 3, 2, 4, 2))
sketch10.addConstraint(Sketcher.Constraint("Vertical", 1, 2, 6, 2))
sketch10.addConstraint(Sketcher.Constraint("Equal", 6, 5))
sketch10.addConstraint(Sketcher.Constraint("DistanceY", 1, 2, 1, 1, Q("1 mm")))
sketch10.addConstraint(Sketcher.Constraint("DistanceX", 0, 1, 0, 2, Q("1.3 mm")))
sketch10.addConstraint(Sketcher.Constraint("DistanceY", 5, 2, -1, 1, Q("85 mm")))
sketch10.addConstraint(Sketcher.Constraint("DistanceY", 4, 2, 2, 2, Q("32 mm")))
sketch10.addConstraint(Sketcher.Constraint("DistanceX", -1, 1, 0, 2, Q("10.9 mm")))
pad5 = body.newObject("PartDesign::Pad", "Pad004")
pad5.Profile = sketch10
pad5.Length = 29

# Sketch on XZ plane
sketch11 = body.newObject("Sketcher::SketchObject", "Sketch010")
sketch11.AttachmentSupport = (doc.getObject("XZ_Plane"), [""])
sketch11.MapMode = "FlatFace"
sketch11.AttachmentOffset = App.Placement(App.Vector(0, 0, -1), App.Rotation())
sketch11.addGeometry(Part.Circle(App.Vector(-98, -9.5, 0), App.Vector(0, 0, 1), 2), False)
sketch11.addGeometry(Part.Circle(App.Vector(-98, -49, 0), App.Vector(0, 0, 1), 2), False)
sketch11.addGeometry(Part.Circle(App.Vector(-46.5, -9.9, 0), App.Vector(0, 0, 1), 2), False)
sketch11.addGeometry(Part.Circle(App.Vector(-67.1, -83.8, 0), App.Vector(0, 0, 1), 2), False)
sketch11.addGeometry(Part.Circle(App.Vector(-4.5, -83.8, 0), App.Vector(0, 0, 1), 2), False)
sketch11.addGeometry(Part.Circle(App.Vector(-4.4, -56, 0), App.Vector(0, 0, 1), 2), False)
sketch11.addConstraint(Sketcher.Constraint("Equal", 0, 1))
sketch11.addConstraint(Sketcher.Constraint("Equal", 1, 2))
sketch11.addConstraint(Sketcher.Constraint("Equal", 2, 3))
sketch11.addConstraint(Sketcher.Constraint("Equal", 3, 4))
sketch11.addConstraint(Sketcher.Constraint("Equal", 4, 5))
sketch11.addConstraint(Sketcher.Constraint("Horizontal", 3, 3, 4, 3))
sketch11.addConstraint(Sketcher.Constraint("Vertical", 0, 3, 1, 3))
sketch11.addConstraint(Sketcher.Constraint("Diameter", 0, Q("4 mm")))
sketch11.addConstraint(Sketcher.Constraint("DistanceX", 0, 3, -1, 1, Q("98 mm")))
sketch11.addConstraint(Sketcher.Constraint("DistanceY", 1, 3, -1, 1, Q("49 mm")))
sketch11.addConstraint(Sketcher.Constraint("DistanceX", 2, 3, -1, 1, Q("46.5 mm")))
sketch11.addConstraint(Sketcher.Constraint("DistanceY", 0, 3, -1, 1, Q("9.46 mm")))
sketch11.addConstraint(Sketcher.Constraint("DistanceY", 2, 3, -1, 1, Q("9.94 mm")))
sketch11.addConstraint(Sketcher.Constraint("DistanceX", 4, 3, -1, 1, Q("4.51 mm")))
sketch11.addConstraint(Sketcher.Constraint("DistanceX", 5, 3, -1, 1, Q("4.39 mm")))
sketch11.addConstraint(Sketcher.Constraint("DistanceY", 5, 3, -1, 1, Q("55.98 mm")))
sketch11.addConstraint(Sketcher.Constraint("DistanceX", 3, 3, -1, 1, Q("67.111 mm")))
sketch11.addConstraint(Sketcher.Constraint("DistanceY", 3, 3, -1, 1, Q("83.775 mm")))
pad6 = body.newObject("PartDesign::Pad", "Pad005")
pad6.Profile = sketch11
pad6.Length = 7
pad6.Reversed = True

doc.recompute()
